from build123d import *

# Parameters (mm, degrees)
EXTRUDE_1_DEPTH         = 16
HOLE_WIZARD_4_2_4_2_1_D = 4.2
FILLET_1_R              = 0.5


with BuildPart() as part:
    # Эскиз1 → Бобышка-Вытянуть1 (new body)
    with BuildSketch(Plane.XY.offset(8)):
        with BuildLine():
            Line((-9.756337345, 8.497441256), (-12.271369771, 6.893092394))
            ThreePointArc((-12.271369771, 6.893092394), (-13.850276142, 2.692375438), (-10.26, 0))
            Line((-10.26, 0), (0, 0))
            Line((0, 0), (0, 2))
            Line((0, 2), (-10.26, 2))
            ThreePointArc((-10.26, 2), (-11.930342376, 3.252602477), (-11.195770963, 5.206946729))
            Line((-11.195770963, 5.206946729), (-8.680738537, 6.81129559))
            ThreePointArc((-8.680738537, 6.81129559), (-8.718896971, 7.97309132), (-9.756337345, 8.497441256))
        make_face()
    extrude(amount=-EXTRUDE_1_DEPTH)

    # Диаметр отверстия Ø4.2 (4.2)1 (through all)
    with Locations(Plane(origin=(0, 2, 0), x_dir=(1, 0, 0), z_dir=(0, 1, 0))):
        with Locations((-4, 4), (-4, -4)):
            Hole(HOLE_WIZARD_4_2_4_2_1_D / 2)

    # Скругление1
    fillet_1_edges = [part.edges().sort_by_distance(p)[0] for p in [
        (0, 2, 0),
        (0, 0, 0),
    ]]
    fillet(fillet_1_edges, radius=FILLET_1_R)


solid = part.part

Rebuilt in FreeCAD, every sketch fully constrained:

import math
import FreeCAD as App
import Part
import Sketcher
from FreeCAD import Vector


def edges_at(feature, points):
    """Names of the edges that pass closest to the given points."""
    edges = feature.Shape.Edges
    near = lambda p: min(range(len(edges)), key=lambda i: edges[i].distToShape(Part.Vertex(*p))[0])
    return sorted({f"Edge{near(p) + 1}" for p in points})

doc = App.newDocument("Part")
body = doc.addObject("PartDesign::Body", "Body")

# Sketch on XY plane
sketch1 = body.newObject("Sketcher::SketchObject", "Sketch")
sketch1.AttachmentSupport = (doc.getObject("XY_Plane"), [""])
sketch1.MapMode = "FlatFace"
sketch1.AttachmentOffset = App.Placement(Vector(0, 0, 8), App.Rotation())
sketch1.addGeometry([
    Part.LineSegment(Vector(-9.756337, 8.497441, 0), Vector(-12.27137, 6.893092, 0)),  # 0
    Part.ArcOfCircle(Part.Circle(Vector(-10.26, 3.74, 0), Vector(0, 0, 1), 3.74), math.radians(122.53396), math.radians(270)),  # 1
    Part.LineSegment(Vector(-10.26, 0, 0), Vector(0, 0, 0)),  # 2
    Part.LineSegment(Vector(0, 0, 0), Vector(0, 2, 0)),  # 3
    Part.LineSegment(Vector(0, 2, 0), Vector(-10.26, 2, 0)),  # 4
    Part.ArcOfCircle(Part.Circle(Vector(-10.26, 3.74, 0), Vector(0, 0, 1), 1.74), math.radians(122.53396), math.radians(270)),  # 5
    Part.LineSegment(Vector(-11.195771, 5.206947, 0), Vector(-8.680739, 6.811296, 0)),  # 6
    Part.ArcOfCircle(Part.Circle(Vector(-9.68, 7.36, 0), Vector(0, 0, 1), 1.14), math.radians(-28.771626), math.radians(93.839546)),  # 7
], False)
sketch1.addConstraint([
    Sketcher.Constraint("Tangent", 0, 2, 1, 1),
    Sketcher.Constraint("Tangent", 1, 2, 2, 1),
    Sketcher.Constraint("Coincident", 2, 2, 3, 1),
    Sketcher.Constraint("Coincident", 3, 2, 4, 1),
    Sketcher.Constraint("Tangent", 4, 2, 5, 2),
    Sketcher.Constraint("Tangent", 5, 1, 6, 1),
    Sketcher.Constraint("Coincident", 6, 2, 7, 1),
    Sketcher.Constraint("Coincident", 7, 2, 0, 1),
    Sketcher.Constraint("Horizontal", 2),
    Sketcher.Constraint("Vertical", 3),
    Sketcher.Constraint("Horizontal", 4),
    Sketcher.Constraint("Coincident", 2, 2, -1, 1),
    Sketcher.Constraint("Coincident", 5, 3, 1, 3),
    Sketcher.Constraint("Parallel", 0, 6),
    Sketcher.Constraint("Equal", 0, 6),
    Sketcher.Constraint("DistanceY", 3, 1, 3, 2, 2.0),
    Sketcher.Constraint("Radius", 1, 3.74),
    Sketcher.Constraint("Radius", 7, 1.14),
    Sketcher.Constraint("DistanceX", 2, 1, 2, 2, 10.26),
    Sketcher.Constraint("DistanceX", 7, 3, -1, 1, 9.68),
    Sketcher.Constraint("DistanceY", -1, 1, 7, 3, 7.36),
])
pad1 = body.newObject("PartDesign::Pad", "Pad")
pad1.Profile = sketch1
pad1.Length = 16
pad1.Reversed = True

# Sketch on XZ plane
sketch2 = body.newObject("Sketcher::SketchObject", "Sketch001")
sketch2.AttachmentSupport = (doc.getObject("XZ_Plane"), [""])
sketch2.MapMode = "FlatFace"
sketch2.AttachmentOffset = App.Placement(Vector(0, 0, -2), App.Rotation())
sketch2.addGeometry([
    Part.Circle(Vector(-4, -4, 0), Vector(0, 0, 1), 2.1),
    Part.Circle(Vector(-4, 4, 0), Vector(0, 0, 1), 2.1),
], False)
sketch2.addConstraint([
    Sketcher.Constraint("Equal", 0, 1),
    Sketcher.Constraint("Symmetric", 0, 3, 1, 3, -1),
    Sketcher.Constraint("Diameter", 0, 4.2),
    Sketcher.Constraint("DistanceX", 0, 3, -1, 1, 4.0),
    Sketcher.Constraint("DistanceY", 0, 3, -1, 1, 4.0),
])
doc.recompute()
hole = body.newObject("PartDesign::Hole", "Hole")
hole.Profile = sketch2
hole.ThreadType = "None"
hole.Diameter = 4.2
hole.DepthType = "ThroughAll"
hole.Reversed = True
doc.recompute()

fillet = body.newObject("PartDesign::Fillet", "Fillet")
fillet.Base = (hole, edges_at(hole, [(0, 2, 0), (0, 0, 0)]))
fillet.Radius = 0.5

doc.recompute()
